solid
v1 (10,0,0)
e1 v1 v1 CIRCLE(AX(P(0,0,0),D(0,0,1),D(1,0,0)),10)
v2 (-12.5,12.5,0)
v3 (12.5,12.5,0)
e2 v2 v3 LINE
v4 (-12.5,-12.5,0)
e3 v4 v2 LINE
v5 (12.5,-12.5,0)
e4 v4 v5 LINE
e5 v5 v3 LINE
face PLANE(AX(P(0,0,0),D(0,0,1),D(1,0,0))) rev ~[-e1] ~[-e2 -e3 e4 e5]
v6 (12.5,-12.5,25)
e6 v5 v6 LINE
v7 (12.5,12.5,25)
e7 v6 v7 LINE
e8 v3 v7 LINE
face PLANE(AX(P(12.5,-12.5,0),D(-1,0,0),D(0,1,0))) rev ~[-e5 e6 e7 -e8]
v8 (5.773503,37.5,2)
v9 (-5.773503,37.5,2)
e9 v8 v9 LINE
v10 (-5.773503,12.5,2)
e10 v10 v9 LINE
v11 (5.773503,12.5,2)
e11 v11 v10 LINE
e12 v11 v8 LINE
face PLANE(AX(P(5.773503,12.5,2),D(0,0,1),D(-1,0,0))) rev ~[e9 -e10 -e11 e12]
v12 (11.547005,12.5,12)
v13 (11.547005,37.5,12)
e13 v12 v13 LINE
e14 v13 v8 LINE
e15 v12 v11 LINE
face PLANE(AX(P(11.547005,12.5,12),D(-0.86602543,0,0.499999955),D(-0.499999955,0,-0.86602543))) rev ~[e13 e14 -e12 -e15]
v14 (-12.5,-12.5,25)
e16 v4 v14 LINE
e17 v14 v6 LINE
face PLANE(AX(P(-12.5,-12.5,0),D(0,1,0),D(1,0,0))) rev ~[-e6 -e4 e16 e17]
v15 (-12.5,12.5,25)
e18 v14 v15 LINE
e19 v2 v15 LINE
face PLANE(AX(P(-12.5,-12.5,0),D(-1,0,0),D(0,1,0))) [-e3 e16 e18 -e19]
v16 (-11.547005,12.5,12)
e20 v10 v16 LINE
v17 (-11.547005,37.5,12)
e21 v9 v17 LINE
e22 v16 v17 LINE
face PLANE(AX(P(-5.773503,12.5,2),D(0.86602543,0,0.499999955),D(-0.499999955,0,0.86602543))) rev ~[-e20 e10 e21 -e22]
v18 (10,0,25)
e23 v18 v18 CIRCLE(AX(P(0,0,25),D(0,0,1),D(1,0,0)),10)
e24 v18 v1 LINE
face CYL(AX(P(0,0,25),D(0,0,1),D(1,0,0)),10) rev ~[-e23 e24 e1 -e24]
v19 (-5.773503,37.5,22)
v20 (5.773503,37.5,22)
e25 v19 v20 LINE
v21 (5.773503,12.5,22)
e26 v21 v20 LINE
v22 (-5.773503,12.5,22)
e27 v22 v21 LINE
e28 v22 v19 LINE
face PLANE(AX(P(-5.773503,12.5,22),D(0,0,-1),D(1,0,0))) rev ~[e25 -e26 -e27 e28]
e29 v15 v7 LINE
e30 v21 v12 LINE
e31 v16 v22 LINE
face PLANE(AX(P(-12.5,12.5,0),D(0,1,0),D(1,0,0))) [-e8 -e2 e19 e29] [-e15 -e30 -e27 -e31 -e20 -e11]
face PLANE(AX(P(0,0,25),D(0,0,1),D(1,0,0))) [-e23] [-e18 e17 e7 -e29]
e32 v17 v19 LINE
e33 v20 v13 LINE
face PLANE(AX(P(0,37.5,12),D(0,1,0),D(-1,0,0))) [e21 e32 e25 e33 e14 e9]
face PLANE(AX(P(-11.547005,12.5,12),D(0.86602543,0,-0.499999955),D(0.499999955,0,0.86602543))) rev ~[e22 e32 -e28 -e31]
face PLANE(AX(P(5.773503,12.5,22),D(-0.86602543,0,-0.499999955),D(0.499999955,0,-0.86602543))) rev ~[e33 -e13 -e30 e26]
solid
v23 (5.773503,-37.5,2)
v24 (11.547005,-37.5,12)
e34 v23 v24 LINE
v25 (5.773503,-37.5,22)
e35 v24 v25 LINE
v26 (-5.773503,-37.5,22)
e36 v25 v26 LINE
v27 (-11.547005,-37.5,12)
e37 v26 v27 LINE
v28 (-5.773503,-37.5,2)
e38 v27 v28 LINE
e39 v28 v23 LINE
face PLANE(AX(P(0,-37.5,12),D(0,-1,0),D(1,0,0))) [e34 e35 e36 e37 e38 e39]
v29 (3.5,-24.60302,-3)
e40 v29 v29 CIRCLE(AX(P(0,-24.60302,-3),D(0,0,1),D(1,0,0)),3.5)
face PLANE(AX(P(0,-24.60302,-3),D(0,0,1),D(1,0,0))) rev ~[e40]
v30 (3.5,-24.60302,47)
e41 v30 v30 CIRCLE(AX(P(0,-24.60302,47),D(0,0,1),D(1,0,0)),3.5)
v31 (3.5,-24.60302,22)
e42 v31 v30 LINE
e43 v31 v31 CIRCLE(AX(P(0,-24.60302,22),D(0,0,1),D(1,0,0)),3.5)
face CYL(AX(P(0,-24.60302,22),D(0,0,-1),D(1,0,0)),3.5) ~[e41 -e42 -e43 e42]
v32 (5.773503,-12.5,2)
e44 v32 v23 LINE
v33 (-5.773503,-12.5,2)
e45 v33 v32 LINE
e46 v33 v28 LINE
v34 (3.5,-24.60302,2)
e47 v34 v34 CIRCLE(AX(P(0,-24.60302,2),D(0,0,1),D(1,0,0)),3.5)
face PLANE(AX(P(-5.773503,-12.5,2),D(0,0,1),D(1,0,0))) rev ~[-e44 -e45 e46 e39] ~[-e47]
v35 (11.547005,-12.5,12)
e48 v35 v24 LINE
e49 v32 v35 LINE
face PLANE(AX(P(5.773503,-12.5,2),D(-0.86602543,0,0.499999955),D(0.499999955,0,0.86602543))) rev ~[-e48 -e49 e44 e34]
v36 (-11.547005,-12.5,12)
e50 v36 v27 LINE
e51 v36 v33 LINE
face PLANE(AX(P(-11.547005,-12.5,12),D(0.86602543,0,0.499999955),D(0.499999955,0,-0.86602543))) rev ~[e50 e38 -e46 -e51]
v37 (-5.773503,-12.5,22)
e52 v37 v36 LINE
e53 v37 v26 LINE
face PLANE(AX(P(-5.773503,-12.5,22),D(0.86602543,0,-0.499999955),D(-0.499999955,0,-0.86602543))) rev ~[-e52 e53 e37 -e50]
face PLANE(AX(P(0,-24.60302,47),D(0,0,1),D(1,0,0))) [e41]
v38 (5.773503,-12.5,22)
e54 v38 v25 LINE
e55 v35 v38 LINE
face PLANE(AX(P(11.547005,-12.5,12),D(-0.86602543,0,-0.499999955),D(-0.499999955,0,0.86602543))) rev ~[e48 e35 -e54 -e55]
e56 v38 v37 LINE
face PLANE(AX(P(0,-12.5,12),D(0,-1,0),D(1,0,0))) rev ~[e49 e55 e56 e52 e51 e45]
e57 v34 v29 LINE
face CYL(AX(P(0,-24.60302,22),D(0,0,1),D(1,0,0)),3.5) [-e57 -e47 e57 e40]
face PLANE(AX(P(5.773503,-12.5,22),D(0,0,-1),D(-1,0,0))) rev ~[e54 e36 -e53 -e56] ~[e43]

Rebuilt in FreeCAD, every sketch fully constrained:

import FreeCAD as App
import Part
import Sketcher

V = App.Vector
Q = App.Units.Quantity


def add_polygon(sketch, points):
    """Adds a closed chain of lines whose ends are joined by coincident constraints."""
    first, n = sketch.GeometryCount, len(points)
    for a, b in zip(points, points[1:] + points[:1]):
        sketch.addGeometry(Part.LineSegment(App.Vector(*a, 0), App.Vector(*b, 0)), False)
    for i in range(n):
        sketch.addConstraint(Sketcher.Constraint("Coincident", first + i, 2, first + (i + 1) % n, 1))

doc = App.newDocument("Part")
body = doc.addObject("PartDesign::Body", "Body")

# Sketch on XY plane
sketch1 = body.newObject("Sketcher::SketchObject", "Sketch")
sketch1.AttachmentSupport = (doc.getObject("XY_Plane"), [""])
sketch1.MapMode = "FlatFace"
add_polygon(sketch1, [(-12, 12), (-12, -12), (12, -12), (12, 12)])  # lines 0-3
sketch1.addConstraint(Sketcher.Constraint("Vertical", 0))
sketch1.addConstraint(Sketcher.Constraint("Horizontal", 1))
sketch1.addConstraint(Sketcher.Constraint("Vertical", 2))
sketch1.addConstraint(Sketcher.Constraint("Horizontal", 3))
sketch1.addConstraint(Sketcher.Constraint("Symmetric", 0, 2, 2, 2, -1, 1))
sketch1.addConstraint(Sketcher.Constraint("Equal", 3, 0))
sketch1.addConstraint(Sketcher.Constraint("DistanceX", 1, 1, 1, 2, Q("25 mm")))
pad1 = body.newObject("PartDesign::Pad", "Pad")
pad1.Profile = sketch1
pad1.Length = 25

# Sketch on XY plane
sketch2 = body.newObject("Sketcher::SketchObject", "Sketch001")
sketch2.AttachmentSupport = (doc.getObject("XY_Plane"), [""])
sketch2.MapMode = "FlatFace"
sketch2.AttachmentOffset = App.Placement(V(0, 0, 25), App.Rotation())
sketch2.addGeometry(Part.Circle(V(0, 0, 0), V(0, 0, 1), 10), False)
sketch2.addConstraint(Sketcher.Constraint("Coincident", 0, 3, -1, 1))
sketch2.addConstraint(Sketcher.Constraint("Diameter", 0, Q("20 mm")))
pocket1 = body.newObject("PartDesign::Pocket", "Pocket")
pocket1.Profile = sketch2
pocket1.Type = "ThroughAll"

# Sketch on XZ plane
sketch3 = body.newObject("Sketcher::SketchObject", "Sketch002")
sketch3.AttachmentSupport = (doc.getObject("XZ_Plane"), [""])
sketch3.MapMode = "FlatFace"
sketch3.AttachmentOffset = App.Placement(V(0, 0, -12.5), App.Rotation())
add_polygon(sketch3, [(12, 12), (6, 2), (-6, 2), (-12, 12), (-6, 22), (6, 22)])  # lines 0-5
sketch3.addConstraint(Sketcher.Constraint("Horizontal", 1))
sketch3.addConstraint(Sketcher.Constraint("Horizontal", 4))
sketch3.addConstraint(Sketcher.Constraint("Symmetric", 2, 2, 5, 2, -2))
sketch3.addConstraint(Sketcher.Constraint("Parallel", 0, 3))
sketch3.addConstraint(Sketcher.Constraint("Parallel", 2, 5))
sketch3.addConstraint(Sketcher.Constraint("Vertical", 1, 2, 3, 2))
sketch3.addConstraint(Sketcher.Constraint("Vertical", 0, 2, 4, 2))
sketch3.addConstraint(Sketcher.Constraint("Angle", 0, Q("-119.999997 deg")))
sketch3.addConstraint(Sketcher.Constraint("DistanceY", -1, 1, 0, 2, Q("2 mm")))
sketch3.addConstraint(Sketcher.Constraint("DistanceY", -1, 1, 2, 2, Q("12 mm")))
sketch3.addConstraint(Sketcher.Constraint("DistanceX", 1, 2, 1, 1, Q("11.547006 mm")))
pad2 = body.newObject("PartDesign::Pad", "Pad001")
pad2.Profile = sketch3
pad2.Length = 25
pad2.Reversed = True
body2 = doc.addObject("PartDesign::Body", "Body001")

# Sketch on XZ plane
sketch4 = body2.newObject("Sketcher::SketchObject", "Sketch003")
sketch4.AttachmentSupport = (doc.getObject("XZ_Plane001"), [""])
sketch4.MapMode = "FlatFace"
sketch4.AttachmentOffset = App.Placement(V(0, 0, 12.5), App.Rotation())
add_polygon(sketch4, [(6, 2), (12, 12), (6, 22), (-6, 22), (-12, 12), (-6, 2)])  # lines 0-5
sketch4.addConstraint(Sketcher.Constraint("Horizontal", 2))
sketch4.addConstraint(Sketcher.Constraint("Horizontal", 5))
sketch4.addConstraint(Sketcher.Constraint("Symmetric", 0, 2, 3, 2, -2))
sketch4.addConstraint(Sketcher.Constraint("Parallel", 0, 3))
sketch4.addConstraint(Sketcher.Constraint("Parallel", 1, 4))
sketch4.addConstraint(Sketcher.Constraint("Vertical", 2, 2, 4, 2))
sketch4.addConstraint(Sketcher.Constraint("Vertical", 1, 2, 5, 2))
sketch4.addConstraint(Sketcher.Constraint("Angle", 0, Q("60.000003 deg")))
sketch4.addConstraint(Sketcher.Constraint("DistanceY", -1, 1, 0, 2, Q("12 mm")))
sketch4.addConstraint(Sketcher.Constraint("DistanceY", -1, 1, 1, 2, Q("22 mm")))
sketch4.addConstraint(Sketcher.Constraint("DistanceX", 2, 2, 2, 1, Q("11.547006 mm")))
pad3 = body2.newObject("PartDesign::Pad", "Pad002")
pad3.Profile = sketch4
pad3.Length = 25

# Sketch on XY plane
sketch5 = body2.newObject("Sketcher::SketchObject", "Sketch004")
sketch5.AttachmentSupport = (doc.getObject("XY_Plane001"), [""])
sketch5.MapMode = "FlatFace"
sketch5.AttachmentOffset = App.Placement(V(0, 0, 22), App.Rotation())
sketch5.addGeometry(Part.Circle(V(0, -24.6, 0), V(0, 0, 1), 3.5), False)
sketch5.addConstraint(Sketcher.Constraint("PointOnObject", 0, 3, -2))
sketch5.addConstraint(Sketcher.Constraint("Diameter", 0, Q("7 mm")))
sketch5.addConstraint(Sketcher.Constraint("DistanceY", 0, 3, -1, 1, Q("24.60302 mm")))
pad4 = body2.newObject("PartDesign::Pad", "Pad003")
pad4.Profile = sketch5
pad4.Type = "TwoLengths"
pad4.Length = 25
pad4.Length2 = 25

doc.recompute()
